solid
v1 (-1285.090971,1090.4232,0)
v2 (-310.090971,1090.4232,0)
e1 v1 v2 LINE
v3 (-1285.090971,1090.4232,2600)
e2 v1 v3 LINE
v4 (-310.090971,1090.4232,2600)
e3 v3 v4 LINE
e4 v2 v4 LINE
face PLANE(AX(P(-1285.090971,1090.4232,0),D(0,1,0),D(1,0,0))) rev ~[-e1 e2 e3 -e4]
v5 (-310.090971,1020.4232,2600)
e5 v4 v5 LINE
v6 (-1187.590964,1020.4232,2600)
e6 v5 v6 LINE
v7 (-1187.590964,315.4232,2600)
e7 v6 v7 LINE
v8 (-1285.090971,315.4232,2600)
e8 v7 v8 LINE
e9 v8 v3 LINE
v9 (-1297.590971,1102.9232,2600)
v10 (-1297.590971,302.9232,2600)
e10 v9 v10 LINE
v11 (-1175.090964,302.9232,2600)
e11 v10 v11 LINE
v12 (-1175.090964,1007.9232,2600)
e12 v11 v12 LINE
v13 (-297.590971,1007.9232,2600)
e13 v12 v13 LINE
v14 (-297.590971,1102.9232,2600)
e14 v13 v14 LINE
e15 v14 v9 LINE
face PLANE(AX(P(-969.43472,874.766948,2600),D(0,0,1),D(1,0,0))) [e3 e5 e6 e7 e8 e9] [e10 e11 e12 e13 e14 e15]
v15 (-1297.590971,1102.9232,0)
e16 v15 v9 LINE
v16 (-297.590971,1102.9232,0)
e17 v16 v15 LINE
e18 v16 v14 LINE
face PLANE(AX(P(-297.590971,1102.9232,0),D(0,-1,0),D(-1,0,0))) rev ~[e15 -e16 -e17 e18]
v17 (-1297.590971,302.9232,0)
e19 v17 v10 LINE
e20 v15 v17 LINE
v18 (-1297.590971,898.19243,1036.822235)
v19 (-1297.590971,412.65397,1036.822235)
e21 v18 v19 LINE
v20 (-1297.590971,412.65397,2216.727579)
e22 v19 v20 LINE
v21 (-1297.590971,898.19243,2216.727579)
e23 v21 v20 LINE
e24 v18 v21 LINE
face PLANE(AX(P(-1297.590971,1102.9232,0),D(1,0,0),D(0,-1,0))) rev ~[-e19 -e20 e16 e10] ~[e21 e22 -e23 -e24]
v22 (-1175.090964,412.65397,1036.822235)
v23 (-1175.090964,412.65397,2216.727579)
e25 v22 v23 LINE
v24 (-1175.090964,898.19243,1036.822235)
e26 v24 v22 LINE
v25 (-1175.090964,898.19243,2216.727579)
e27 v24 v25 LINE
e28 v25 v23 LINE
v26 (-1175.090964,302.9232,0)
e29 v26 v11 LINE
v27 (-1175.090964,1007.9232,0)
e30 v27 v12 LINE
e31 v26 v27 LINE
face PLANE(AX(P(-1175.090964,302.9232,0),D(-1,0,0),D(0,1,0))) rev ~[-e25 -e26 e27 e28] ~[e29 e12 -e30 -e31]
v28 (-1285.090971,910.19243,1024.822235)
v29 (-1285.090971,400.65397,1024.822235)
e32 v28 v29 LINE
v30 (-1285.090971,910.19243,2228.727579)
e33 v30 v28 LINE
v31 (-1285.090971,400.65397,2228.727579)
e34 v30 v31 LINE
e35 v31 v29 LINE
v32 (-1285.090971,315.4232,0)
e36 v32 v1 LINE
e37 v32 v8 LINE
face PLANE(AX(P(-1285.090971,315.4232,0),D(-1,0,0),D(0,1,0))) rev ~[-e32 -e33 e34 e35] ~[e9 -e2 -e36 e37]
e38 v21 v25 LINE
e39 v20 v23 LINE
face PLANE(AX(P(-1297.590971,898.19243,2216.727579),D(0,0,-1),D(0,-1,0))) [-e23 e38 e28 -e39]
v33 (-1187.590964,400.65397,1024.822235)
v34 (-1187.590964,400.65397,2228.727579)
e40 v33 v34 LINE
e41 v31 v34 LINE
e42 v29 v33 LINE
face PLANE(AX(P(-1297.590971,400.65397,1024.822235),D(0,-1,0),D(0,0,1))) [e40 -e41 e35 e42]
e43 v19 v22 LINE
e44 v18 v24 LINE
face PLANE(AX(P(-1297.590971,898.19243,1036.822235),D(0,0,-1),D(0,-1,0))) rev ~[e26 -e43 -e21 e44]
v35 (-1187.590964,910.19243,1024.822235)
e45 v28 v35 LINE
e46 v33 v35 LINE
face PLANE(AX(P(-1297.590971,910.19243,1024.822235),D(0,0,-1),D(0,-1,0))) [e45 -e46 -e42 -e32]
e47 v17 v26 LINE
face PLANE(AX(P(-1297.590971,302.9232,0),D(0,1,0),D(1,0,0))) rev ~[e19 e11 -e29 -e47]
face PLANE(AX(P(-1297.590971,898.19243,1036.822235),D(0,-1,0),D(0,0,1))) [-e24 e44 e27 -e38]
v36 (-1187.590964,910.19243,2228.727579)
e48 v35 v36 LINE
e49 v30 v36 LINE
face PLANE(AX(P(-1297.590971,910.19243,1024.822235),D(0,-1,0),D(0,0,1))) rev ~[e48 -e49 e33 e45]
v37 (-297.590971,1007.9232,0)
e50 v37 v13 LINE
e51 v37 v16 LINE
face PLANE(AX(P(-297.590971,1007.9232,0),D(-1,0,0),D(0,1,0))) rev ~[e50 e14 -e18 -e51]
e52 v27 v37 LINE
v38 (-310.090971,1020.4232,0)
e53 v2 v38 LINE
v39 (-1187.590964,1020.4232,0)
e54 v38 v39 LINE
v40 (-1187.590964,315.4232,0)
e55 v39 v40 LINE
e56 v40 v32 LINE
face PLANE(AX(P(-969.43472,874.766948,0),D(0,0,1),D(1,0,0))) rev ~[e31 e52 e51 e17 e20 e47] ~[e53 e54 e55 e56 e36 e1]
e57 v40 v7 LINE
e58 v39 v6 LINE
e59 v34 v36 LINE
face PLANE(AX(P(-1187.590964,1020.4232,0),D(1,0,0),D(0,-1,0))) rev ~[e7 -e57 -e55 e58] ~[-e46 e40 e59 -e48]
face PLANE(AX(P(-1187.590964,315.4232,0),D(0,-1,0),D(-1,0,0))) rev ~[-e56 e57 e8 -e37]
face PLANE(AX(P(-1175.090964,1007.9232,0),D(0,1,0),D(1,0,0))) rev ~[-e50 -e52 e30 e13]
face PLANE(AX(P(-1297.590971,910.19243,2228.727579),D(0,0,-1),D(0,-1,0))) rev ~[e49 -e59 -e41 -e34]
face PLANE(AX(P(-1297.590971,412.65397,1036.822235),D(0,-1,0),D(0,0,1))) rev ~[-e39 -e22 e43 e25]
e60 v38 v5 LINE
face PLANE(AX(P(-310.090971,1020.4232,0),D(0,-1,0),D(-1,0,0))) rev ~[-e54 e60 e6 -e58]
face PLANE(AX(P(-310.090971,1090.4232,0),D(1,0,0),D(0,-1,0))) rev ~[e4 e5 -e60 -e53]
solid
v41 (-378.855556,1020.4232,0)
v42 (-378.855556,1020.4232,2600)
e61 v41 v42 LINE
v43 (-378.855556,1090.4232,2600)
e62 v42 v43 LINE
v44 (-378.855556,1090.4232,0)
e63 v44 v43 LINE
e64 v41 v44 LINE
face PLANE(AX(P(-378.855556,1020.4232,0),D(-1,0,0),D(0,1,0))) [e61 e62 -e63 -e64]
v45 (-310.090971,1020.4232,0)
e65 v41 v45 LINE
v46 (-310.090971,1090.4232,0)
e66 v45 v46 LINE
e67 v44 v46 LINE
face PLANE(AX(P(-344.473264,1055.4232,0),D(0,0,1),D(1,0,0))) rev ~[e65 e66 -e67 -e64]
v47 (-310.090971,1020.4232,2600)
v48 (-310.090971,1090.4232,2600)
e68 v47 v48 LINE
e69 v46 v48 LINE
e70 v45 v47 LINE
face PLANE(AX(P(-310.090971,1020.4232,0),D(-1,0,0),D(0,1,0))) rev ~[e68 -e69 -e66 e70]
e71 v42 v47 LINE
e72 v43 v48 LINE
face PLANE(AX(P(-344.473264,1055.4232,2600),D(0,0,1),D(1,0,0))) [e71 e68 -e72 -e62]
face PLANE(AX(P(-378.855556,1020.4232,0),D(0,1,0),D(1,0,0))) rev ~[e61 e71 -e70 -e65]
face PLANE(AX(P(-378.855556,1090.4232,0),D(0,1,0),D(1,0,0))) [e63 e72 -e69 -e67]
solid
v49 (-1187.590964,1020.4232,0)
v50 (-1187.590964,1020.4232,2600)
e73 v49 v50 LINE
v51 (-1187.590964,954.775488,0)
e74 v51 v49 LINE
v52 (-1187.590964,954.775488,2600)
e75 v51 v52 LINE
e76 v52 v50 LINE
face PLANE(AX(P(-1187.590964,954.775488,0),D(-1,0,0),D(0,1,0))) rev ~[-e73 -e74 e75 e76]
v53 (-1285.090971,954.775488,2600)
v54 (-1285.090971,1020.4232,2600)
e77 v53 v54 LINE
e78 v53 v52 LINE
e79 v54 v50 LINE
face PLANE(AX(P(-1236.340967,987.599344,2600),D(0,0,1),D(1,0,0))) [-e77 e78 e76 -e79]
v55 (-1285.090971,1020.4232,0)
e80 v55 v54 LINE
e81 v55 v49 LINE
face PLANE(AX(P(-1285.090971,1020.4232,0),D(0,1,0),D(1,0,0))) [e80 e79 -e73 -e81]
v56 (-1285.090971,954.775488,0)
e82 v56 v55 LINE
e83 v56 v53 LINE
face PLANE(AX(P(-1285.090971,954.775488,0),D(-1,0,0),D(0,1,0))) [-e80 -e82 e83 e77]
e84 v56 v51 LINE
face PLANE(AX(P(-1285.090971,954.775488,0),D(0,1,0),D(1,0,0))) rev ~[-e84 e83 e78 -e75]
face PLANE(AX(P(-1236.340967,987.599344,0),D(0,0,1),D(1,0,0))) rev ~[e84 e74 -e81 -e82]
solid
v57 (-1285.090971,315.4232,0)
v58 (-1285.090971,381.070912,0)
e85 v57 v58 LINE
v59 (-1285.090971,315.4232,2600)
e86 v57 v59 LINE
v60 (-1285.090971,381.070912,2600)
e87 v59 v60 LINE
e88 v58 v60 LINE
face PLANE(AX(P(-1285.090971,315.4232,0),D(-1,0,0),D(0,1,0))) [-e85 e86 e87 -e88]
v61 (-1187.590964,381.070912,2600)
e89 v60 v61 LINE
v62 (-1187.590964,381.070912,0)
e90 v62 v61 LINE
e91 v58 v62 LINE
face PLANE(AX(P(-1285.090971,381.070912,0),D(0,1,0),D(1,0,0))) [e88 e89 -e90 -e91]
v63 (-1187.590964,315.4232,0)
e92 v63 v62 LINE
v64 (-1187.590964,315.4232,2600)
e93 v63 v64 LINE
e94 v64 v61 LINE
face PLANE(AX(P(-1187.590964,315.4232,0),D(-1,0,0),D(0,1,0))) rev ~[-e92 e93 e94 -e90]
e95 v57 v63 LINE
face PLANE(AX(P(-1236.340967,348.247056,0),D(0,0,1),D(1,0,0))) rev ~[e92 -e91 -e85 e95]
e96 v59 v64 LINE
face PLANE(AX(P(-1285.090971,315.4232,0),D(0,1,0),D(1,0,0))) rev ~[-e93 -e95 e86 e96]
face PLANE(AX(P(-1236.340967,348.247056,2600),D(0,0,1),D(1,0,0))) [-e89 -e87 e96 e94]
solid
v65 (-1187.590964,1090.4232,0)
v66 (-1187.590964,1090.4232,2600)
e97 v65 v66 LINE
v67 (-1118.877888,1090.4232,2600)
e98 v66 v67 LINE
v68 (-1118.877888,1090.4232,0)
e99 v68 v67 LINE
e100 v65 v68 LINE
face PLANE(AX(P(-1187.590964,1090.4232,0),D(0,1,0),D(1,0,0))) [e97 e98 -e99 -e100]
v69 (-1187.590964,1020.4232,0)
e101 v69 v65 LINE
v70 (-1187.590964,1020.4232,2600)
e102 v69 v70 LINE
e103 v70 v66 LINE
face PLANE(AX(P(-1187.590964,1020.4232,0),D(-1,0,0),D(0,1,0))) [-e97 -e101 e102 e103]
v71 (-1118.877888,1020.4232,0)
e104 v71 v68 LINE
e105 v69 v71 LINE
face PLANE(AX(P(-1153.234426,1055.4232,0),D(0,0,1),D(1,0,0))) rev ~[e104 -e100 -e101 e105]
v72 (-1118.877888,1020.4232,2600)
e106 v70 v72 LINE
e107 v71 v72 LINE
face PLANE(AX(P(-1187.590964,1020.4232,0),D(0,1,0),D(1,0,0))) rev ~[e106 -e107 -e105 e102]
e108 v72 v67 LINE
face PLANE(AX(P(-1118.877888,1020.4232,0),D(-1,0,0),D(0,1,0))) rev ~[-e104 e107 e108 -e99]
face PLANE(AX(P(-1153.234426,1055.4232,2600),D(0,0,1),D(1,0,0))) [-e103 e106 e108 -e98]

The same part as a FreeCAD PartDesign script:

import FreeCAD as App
import Part
import Sketcher

doc = App.newDocument("Part")
body = doc.addObject("PartDesign::Body", "Body")

# Sketch on XY plane
sketch1 = body.newObject("Sketcher::SketchObject", "Sketch")
sketch1.AttachmentSupport = (doc.getObject("XY_Plane"), [""])
sketch1.MapMode = "FlatFace"
sketch1.addGeometry([
    Part.LineSegment(App.Vector(-1298, 303, 0), App.Vector(-1175, 303, 0)),  # 0
    Part.LineSegment(App.Vector(-1175, 303, 0), App.Vector(-1175, 1008, 0)),  # 1
    Part.LineSegment(App.Vector(-1175, 1008, 0), App.Vector(-298, 1008, 0)),  # 2
    Part.LineSegment(App.Vector(-298, 1008, 0), App.Vector(-298, 1103, 0)),  # 3
    Part.LineSegment(App.Vector(-298, 1103, 0), App.Vector(-1298, 1103, 0)),  # 4
    Part.LineSegment(App.Vector(-1298, 1103, 0), App.Vector(-1298, 303, 0)),  # 5
    Part.LineSegment(App.Vector(-310, 1020, 0), App.Vector(-1188, 1020, 0)),  # 6
    Part.LineSegment(App.Vector(-1188, 1020, 0), App.Vector(-1188, 315, 0)),  # 7
    Part.LineSegment(App.Vector(-1188, 315, 0), App.Vector(-1285, 315, 0)),  # 8
    Part.LineSegment(App.Vector(-1285, 315, 0), App.Vector(-1285, 1090, 0)),  # 9
    Part.LineSegment(App.Vector(-1285, 1090, 0), App.Vector(-310, 1090, 0)),  # 10
    Part.LineSegment(App.Vector(-310, 1090, 0), App.Vector(-310, 1020, 0)),  # 11
], False)
sketch1.addConstraint([
    Sketcher.Constraint("Coincident", 0, 2, 1, 1),
    Sketcher.Constraint("Coincident", 1, 2, 2, 1),
    Sketcher.Constraint("Coincident", 2, 2, 3, 1),
    Sketcher.Constraint("Coincident", 3, 2, 4, 1),
    Sketcher.Constraint("Coincident", 4, 2, 5, 1),
    Sketcher.Constraint("Coincident", 5, 2, 0, 1),
    Sketcher.Constraint("Coincident", 6, 2, 7, 1),
    Sketcher.Constraint("Coincident", 7, 2, 8, 1),
    Sketcher.Constraint("Coincident", 8, 2, 9, 1),
    Sketcher.Constraint("Coincident", 9, 2, 10, 1),
    Sketcher.Constraint("Coincident", 10, 2, 11, 1),
    Sketcher.Constraint("Coincident", 11, 2, 6, 1),
    Sketcher.Constraint("Horizontal", 0),
    Sketcher.Constraint("Vertical", 1),
    Sketcher.Constraint("Horizontal", 2),
    Sketcher.Constraint("Vertical", 3),
    Sketcher.Constraint("Horizontal", 4),
    Sketcher.Constraint("Vertical", 5),
    Sketcher.Constraint("Horizontal", 6),
    Sketcher.Constraint("Vertical", 7),
    Sketcher.Constraint("Horizontal", 8),
    Sketcher.Constraint("Vertical", 9),
    Sketcher.Constraint("Horizontal", 10),
    Sketcher.Constraint("Vertical", 11),
    Sketcher.Constraint("Equal", 2, 6),
    Sketcher.Constraint("Equal", 1, 7),
    Sketcher.Constraint("DistanceX", 4, 2, 4, 1, 1000.0),
    Sketcher.Constraint("DistanceX", 10, 1, 10, 2, 975.0),
    Sketcher.Constraint("DistanceY", 1, 1, 1, 2, 705.0),
    Sketcher.Constraint("DistanceY", 3, 1, 3, 2, 95.0),
    Sketcher.Constraint("DistanceY", 9, 1, 9, 2, 775.0),
    Sketcher.Constraint("DistanceX", 6, 2, 1, 2, 12.5),
    Sketcher.Constraint("DistanceY", 1, 2, 6, 2, 12.5),
    Sketcher.Constraint("DistanceY", -1, 1, 0, 2, 302.9232),
    Sketcher.Constraint("DistanceX", 0, 1, 0, 2, 122.500007),
    Sketcher.Constraint("DistanceX", 2, 2, -1, 1, 297.590971),
])
pad1 = body.newObject("PartDesign::Pad", "Pad")
pad1.Profile = sketch1
pad1.Length = 2600

# Sketch on YZ plane
sketch2 = body.newObject("Sketcher::SketchObject", "Sketch001")
sketch2.AttachmentSupport = (doc.getObject("YZ_Plane"), [""])
sketch2.MapMode = "FlatFace"
sketch2.AttachmentOffset = App.Placement(App.Vector(0, 0, -1175.090964), App.Rotation())
sketch2.addGeometry([
    Part.LineSegment(App.Vector(401, 2229, 0), App.Vector(401, 1025, 0)),
    Part.LineSegment(App.Vector(401, 1025, 0), App.Vector(910, 1025, 0)),
    Part.LineSegment(App.Vector(910, 1025, 0), App.Vector(910, 2229, 0)),
    Part.LineSegment(App.Vector(910, 2229, 0), App.Vector(401, 2229, 0)),
], False)
sketch2.addConstraint([
    Sketcher.Constraint("Coincident", 0, 2, 1, 1),
    Sketcher.Constraint("Coincident", 1, 2, 2, 1),
    Sketcher.Constraint("Coincident", 2, 2, 3, 1),
    Sketcher.Constraint("Coincident", 3, 2, 0, 1),
    Sketcher.Constraint("Vertical", 0),
    Sketcher.Constraint("Horizontal", 1),
    Sketcher.Constraint("Vertical", 2),
    Sketcher.Constraint("Horizontal", 3),
    Sketcher.Constraint("DistanceX", 1, 1, 1, 2, 509.53846),
    Sketcher.Constraint("DistanceY", 0, 2, 0, 1, 1203.905344),
    Sketcher.Constraint("DistanceX", -1, 1, 0, 2, 400.65397),
    Sketcher.Constraint("DistanceY", -1, 1, 2, 2, 2228.727579),
])
pocket1 = body.newObject("PartDesign::Pocket", "Pocket")
pocket1.Profile = sketch2
pocket1.Type = "ThroughAll"

# Sketch on YZ plane
sketch3 = body.newObject("Sketcher::SketchObject", "Sketch002")
sketch3.AttachmentSupport = (doc.getObject("YZ_Plane"), [""])
sketch3.MapMode = "FlatFace"
sketch3.AttachmentOffset = App.Placement(App.Vector(0, 0, -1297.590971), App.Rotation())
sketch3.addGeometry([
    Part.LineSegment(App.Vector(910, 2229, 0), App.Vector(910, 1025, 0)),  # 0
    Part.LineSegment(App.Vector(910, 1025, 0), App.Vector(401, 1025, 0)),  # 1
    Part.LineSegment(App.Vector(401, 1025, 0), App.Vector(401, 2229, 0)),  # 2
    Part.LineSegment(App.Vector(401, 2229, 0), App.Vector(910, 2229, 0)),  # 3
    Part.LineSegment(App.Vector(413, 1037, 0), App.Vector(898, 1037, 0)),  # 4
    Part.LineSegment(App.Vector(898, 1037, 0), App.Vector(898, 2217, 0)),  # 5
    Part.LineSegment(App.Vector(898, 2217, 0), App.Vector(413, 2217, 0)),  # 6
    Part.LineSegment(App.Vector(413, 2217, 0), App.Vector(413, 1037, 0)),  # 7
], False)
sketch3.addConstraint([
    Sketcher.Constraint("Coincident", 0, 2, 1, 1),
    Sketcher.Constraint("Coincident", 1, 2, 2, 1),
    Sketcher.Constraint("Coincident", 2, 2, 3, 1),
    Sketcher.Constraint("Coincident", 3, 2, 0, 1),
    Sketcher.Constraint("Coincident", 4, 2, 5, 1),
    Sketcher.Constraint("Coincident", 5, 2, 6, 1),
    Sketcher.Constraint("Coincident", 6, 2, 7, 1),
    Sketcher.Constraint("Coincident", 7, 2, 4, 1),
    Sketcher.Constraint("Vertical", 0),
    Sketcher.Constraint("Horizontal", 1),
    Sketcher.Constraint("Vertical", 2),
    Sketcher.Constraint("Horizontal", 3),
    Sketcher.Constraint("Horizontal", 4),
    Sketcher.Constraint("Vertical", 5),
    Sketcher.Constraint("Horizontal", 6),
    Sketcher.Constraint("Vertical", 7),
    Sketcher.Constraint("DistanceX", 4, 2, 0, 2, 12.0),
    Sketcher.Constraint("DistanceY", 0, 2, 4, 2, 12.0),
    Sketcher.Constraint("DistanceY", 5, 2, 3, 2, 12.0),
    Sketcher.Constraint("DistanceX", 2, 2, 6, 2, 12.0),
    Sketcher.Constraint("DistanceX", 1, 2, 1, 1, 509.53846),
    Sketcher.Constraint("DistanceY", 0, 2, 0, 1, 1203.905344),
    Sketcher.Constraint("DistanceX", -1, 1, 0, 2, 910.19243),
    Sketcher.Constraint("DistanceY", -1, 1, 2, 2, 2228.727579),
])
pad2 = body.newObject("PartDesign::Pad", "Pad001")
pad2.Profile = sketch3
pad2.Length = 122.500007
body2 = doc.addObject("PartDesign::Body", "Body001")

# Sketch on XY plane
sketch4 = body2.newObject("Sketcher::SketchObject", "Sketch003")
sketch4.AttachmentSupport = (doc.getObject("XY_Plane001"), [""])
sketch4.MapMode = "FlatFace"
sketch4.addGeometry([
    Part.LineSegment(App.Vector(-1285, 381, 0), App.Vector(-1285, 315, 0)),
    Part.LineSegment(App.Vector(-1285, 315, 0), App.Vector(-1188, 315, 0)),
    Part.LineSegment(App.Vector(-1188, 315, 0), App.Vector(-1188, 381, 0)),
    Part.LineSegment(App.Vector(-1188, 381, 0), App.Vector(-1285, 381, 0)),
], False)
sketch4.addConstraint([
    Sketcher.Constraint("Coincident", 0, 2, 1, 1),
    Sketcher.Constraint("Coincident", 1, 2, 2, 1),
    Sketcher.Constraint("Coincident", 2, 2, 3, 1),
    Sketcher.Constraint("Coincident", 3, 2, 0, 1),
    Sketcher.Constraint("Vertical", 0),
    Sketcher.Constraint("Horizontal", 1),
    Sketcher.Constraint("Vertical", 2),
    Sketcher.Constraint("Horizontal", 3),
    Sketcher.Constraint("DistanceY", -1, 1, 0, 2, 315.4232),
    Sketcher.Constraint("DistanceX", 1, 1, 1, 2, 97.500007),
    Sketcher.Constraint("DistanceY", 0, 2, 0, 1, 65.647712),
    Sketcher.Constraint("DistanceX", 0, 2, -1, 1, 1285.090971),
])
pad3 = body2.newObject("PartDesign::Pad", "Pad002")
pad3.Profile = sketch4
pad3.Length = 2600
body3 = doc.addObject("PartDesign::Body", "Body002")

# Sketch on XY plane
sketch5 = body3.newObject("Sketcher::SketchObject", "Sketch004")
sketch5.AttachmentSupport = (doc.getObject("XY_Plane002"), [""])
sketch5.MapMode = "FlatFace"
sketch5.addGeometry([
    Part.LineSegment(App.Vector(-1285, 1020, 0), App.Vector(-1285, 955, 0)),
    Part.LineSegment(App.Vector(-1285, 955, 0), App.Vector(-1188, 955, 0)),
    Part.LineSegment(App.Vector(-1188, 955, 0), App.Vector(-1188, 1020, 0)),
    Part.LineSegment(App.Vector(-1188, 1020, 0), App.Vector(-1285, 1020, 0)),
], False)
sketch5.addConstraint([
    Sketcher.Constraint("Coincident", 0, 2, 1, 1),
    Sketcher.Constraint("Coincident", 1, 2, 2, 1),
    Sketcher.Constraint("Coincident", 2, 2, 3, 1),
    Sketcher.Constraint("Coincident", 3, 2, 0, 1),
    Sketcher.Constraint("Vertical", 0),
    Sketcher.Constraint("Horizontal", 1),
    Sketcher.Constraint("Vertical", 2),
    Sketcher.Constraint("Horizontal", 3),
    Sketcher.Constraint("DistanceY", -1, 1, 2, 2, 1020.4232),
    Sketcher.Constraint("DistanceX", 1, 1, 1, 2, 97.500007),
    Sketcher.Constraint("DistanceY", 0, 2, 0, 1, 65.647712),
    Sketcher.Constraint("DistanceX", 0, 2, -1, 1, 1285.090971),
])
pad4 = body3.newObject("PartDesign::Pad", "Pad003")
pad4.Profile = sketch5
pad4.Length = 2600
body4 = doc.addObject("PartDesign::Body", "Body003")

# Sketch on XY plane
sketch6 = body4.newObject("Sketcher::SketchObject", "Sketch005")
sketch6.AttachmentSupport = (doc.getObject("XY_Plane003"), [""])
sketch6.MapMode = "FlatFace"
sketch6.addGeometry([
    Part.LineSegment(App.Vector(-1188, 1090, 0), App.Vector(-1188, 1020, 0)),
    Part.LineSegment(App.Vector(-1188, 1020, 0), App.Vector(-1119, 1020, 0)),
    Part.LineSegment(App.Vector(-1119, 1020, 0), App.Vector(-1119, 1090, 0)),
    Part.LineSegment(App.Vector(-1119, 1090, 0), App.Vector(-1188, 1090, 0)),
], False)
sketch6.addConstraint([
    Sketcher.Constraint("Coincident", 0, 2, 1, 1),
    Sketcher.Constraint("Coincident", 1, 2, 2, 1),
    Sketcher.Constraint("Coincident", 2, 2, 3, 1),
    Sketcher.Constraint("Coincident", 3, 2, 0, 1),
    Sketcher.Constraint("Vertical", 0),
    Sketcher.Constraint("Horizontal", 1),
    Sketcher.Constraint("Vertical", 2),
    Sketcher.Constraint("Horizontal", 3),
    Sketcher.Constraint("DistanceY", 0, 2, 0, 1, 70.0),
    Sketcher.Constraint("DistanceY", -1, 1, 0, 2, 1020.4232),
    Sketcher.Constraint("DistanceX", 1, 1, 1, 2, 68.713076),
    Sketcher.Constraint("DistanceX", 0, 2, -1, 1, 1187.590964),
])
pad5 = body4.newObject("PartDesign::Pad", "Pad004")
pad5.Profile = sketch6
pad5.Length = 2600
body5 = doc.addObject("PartDesign::Body", "Body004")

# Sketch on XY plane
sketch7 = body5.newObject("Sketcher::SketchObject", "Sketch006")
sketch7.AttachmentSupport = (doc.getObject("XY_Plane004"), [""])
sketch7.MapMode = "FlatFace"
sketch7.addGeometry([
    Part.LineSegment(App.Vector(-379, 1090, 0), App.Vector(-379, 1020, 0)),
    Part.LineSegment(App.Vector(-379, 1020, 0), App.Vector(-310, 1020, 0)),
    Part.LineSegment(App.Vector(-310, 1020, 0), App.Vector(-310, 1090, 0)),
    Part.LineSegment(App.Vector(-310, 1090, 0), App.Vector(-379, 1090, 0)),
], False)
sketch7.addConstraint([
    Sketcher.Constraint("Coincident", 0, 2, 1, 1),
    Sketcher.Constraint("Coincident", 1, 2, 2, 1),
    Sketcher.Constraint("Coincident", 2, 2, 3, 1),
    Sketcher.Constraint("Coincident", 3, 2, 0, 1),
    Sketcher.Constraint("Vertical", 0),
    Sketcher.Constraint("Horizontal", 1),
    Sketcher.Constraint("Vertical", 2),
    Sketcher.Constraint("Horizontal", 3),
    Sketcher.Constraint("DistanceY", 0, 2, 0, 1, 70.0),
    Sketcher.Constraint("DistanceY", -1, 1, 0, 2, 1020.4232),
    Sketcher.Constraint("DistanceX", 1, 1, 1, 2, 68.764585),
    Sketcher.Constraint("DistanceX", 1, 2, -1, 1, 310.090971),
])
pad6 = body5.newObject("PartDesign::Pad", "Pad005")
pad6.Profile = sketch7
pad6.Length = 2600

doc.recompute()
